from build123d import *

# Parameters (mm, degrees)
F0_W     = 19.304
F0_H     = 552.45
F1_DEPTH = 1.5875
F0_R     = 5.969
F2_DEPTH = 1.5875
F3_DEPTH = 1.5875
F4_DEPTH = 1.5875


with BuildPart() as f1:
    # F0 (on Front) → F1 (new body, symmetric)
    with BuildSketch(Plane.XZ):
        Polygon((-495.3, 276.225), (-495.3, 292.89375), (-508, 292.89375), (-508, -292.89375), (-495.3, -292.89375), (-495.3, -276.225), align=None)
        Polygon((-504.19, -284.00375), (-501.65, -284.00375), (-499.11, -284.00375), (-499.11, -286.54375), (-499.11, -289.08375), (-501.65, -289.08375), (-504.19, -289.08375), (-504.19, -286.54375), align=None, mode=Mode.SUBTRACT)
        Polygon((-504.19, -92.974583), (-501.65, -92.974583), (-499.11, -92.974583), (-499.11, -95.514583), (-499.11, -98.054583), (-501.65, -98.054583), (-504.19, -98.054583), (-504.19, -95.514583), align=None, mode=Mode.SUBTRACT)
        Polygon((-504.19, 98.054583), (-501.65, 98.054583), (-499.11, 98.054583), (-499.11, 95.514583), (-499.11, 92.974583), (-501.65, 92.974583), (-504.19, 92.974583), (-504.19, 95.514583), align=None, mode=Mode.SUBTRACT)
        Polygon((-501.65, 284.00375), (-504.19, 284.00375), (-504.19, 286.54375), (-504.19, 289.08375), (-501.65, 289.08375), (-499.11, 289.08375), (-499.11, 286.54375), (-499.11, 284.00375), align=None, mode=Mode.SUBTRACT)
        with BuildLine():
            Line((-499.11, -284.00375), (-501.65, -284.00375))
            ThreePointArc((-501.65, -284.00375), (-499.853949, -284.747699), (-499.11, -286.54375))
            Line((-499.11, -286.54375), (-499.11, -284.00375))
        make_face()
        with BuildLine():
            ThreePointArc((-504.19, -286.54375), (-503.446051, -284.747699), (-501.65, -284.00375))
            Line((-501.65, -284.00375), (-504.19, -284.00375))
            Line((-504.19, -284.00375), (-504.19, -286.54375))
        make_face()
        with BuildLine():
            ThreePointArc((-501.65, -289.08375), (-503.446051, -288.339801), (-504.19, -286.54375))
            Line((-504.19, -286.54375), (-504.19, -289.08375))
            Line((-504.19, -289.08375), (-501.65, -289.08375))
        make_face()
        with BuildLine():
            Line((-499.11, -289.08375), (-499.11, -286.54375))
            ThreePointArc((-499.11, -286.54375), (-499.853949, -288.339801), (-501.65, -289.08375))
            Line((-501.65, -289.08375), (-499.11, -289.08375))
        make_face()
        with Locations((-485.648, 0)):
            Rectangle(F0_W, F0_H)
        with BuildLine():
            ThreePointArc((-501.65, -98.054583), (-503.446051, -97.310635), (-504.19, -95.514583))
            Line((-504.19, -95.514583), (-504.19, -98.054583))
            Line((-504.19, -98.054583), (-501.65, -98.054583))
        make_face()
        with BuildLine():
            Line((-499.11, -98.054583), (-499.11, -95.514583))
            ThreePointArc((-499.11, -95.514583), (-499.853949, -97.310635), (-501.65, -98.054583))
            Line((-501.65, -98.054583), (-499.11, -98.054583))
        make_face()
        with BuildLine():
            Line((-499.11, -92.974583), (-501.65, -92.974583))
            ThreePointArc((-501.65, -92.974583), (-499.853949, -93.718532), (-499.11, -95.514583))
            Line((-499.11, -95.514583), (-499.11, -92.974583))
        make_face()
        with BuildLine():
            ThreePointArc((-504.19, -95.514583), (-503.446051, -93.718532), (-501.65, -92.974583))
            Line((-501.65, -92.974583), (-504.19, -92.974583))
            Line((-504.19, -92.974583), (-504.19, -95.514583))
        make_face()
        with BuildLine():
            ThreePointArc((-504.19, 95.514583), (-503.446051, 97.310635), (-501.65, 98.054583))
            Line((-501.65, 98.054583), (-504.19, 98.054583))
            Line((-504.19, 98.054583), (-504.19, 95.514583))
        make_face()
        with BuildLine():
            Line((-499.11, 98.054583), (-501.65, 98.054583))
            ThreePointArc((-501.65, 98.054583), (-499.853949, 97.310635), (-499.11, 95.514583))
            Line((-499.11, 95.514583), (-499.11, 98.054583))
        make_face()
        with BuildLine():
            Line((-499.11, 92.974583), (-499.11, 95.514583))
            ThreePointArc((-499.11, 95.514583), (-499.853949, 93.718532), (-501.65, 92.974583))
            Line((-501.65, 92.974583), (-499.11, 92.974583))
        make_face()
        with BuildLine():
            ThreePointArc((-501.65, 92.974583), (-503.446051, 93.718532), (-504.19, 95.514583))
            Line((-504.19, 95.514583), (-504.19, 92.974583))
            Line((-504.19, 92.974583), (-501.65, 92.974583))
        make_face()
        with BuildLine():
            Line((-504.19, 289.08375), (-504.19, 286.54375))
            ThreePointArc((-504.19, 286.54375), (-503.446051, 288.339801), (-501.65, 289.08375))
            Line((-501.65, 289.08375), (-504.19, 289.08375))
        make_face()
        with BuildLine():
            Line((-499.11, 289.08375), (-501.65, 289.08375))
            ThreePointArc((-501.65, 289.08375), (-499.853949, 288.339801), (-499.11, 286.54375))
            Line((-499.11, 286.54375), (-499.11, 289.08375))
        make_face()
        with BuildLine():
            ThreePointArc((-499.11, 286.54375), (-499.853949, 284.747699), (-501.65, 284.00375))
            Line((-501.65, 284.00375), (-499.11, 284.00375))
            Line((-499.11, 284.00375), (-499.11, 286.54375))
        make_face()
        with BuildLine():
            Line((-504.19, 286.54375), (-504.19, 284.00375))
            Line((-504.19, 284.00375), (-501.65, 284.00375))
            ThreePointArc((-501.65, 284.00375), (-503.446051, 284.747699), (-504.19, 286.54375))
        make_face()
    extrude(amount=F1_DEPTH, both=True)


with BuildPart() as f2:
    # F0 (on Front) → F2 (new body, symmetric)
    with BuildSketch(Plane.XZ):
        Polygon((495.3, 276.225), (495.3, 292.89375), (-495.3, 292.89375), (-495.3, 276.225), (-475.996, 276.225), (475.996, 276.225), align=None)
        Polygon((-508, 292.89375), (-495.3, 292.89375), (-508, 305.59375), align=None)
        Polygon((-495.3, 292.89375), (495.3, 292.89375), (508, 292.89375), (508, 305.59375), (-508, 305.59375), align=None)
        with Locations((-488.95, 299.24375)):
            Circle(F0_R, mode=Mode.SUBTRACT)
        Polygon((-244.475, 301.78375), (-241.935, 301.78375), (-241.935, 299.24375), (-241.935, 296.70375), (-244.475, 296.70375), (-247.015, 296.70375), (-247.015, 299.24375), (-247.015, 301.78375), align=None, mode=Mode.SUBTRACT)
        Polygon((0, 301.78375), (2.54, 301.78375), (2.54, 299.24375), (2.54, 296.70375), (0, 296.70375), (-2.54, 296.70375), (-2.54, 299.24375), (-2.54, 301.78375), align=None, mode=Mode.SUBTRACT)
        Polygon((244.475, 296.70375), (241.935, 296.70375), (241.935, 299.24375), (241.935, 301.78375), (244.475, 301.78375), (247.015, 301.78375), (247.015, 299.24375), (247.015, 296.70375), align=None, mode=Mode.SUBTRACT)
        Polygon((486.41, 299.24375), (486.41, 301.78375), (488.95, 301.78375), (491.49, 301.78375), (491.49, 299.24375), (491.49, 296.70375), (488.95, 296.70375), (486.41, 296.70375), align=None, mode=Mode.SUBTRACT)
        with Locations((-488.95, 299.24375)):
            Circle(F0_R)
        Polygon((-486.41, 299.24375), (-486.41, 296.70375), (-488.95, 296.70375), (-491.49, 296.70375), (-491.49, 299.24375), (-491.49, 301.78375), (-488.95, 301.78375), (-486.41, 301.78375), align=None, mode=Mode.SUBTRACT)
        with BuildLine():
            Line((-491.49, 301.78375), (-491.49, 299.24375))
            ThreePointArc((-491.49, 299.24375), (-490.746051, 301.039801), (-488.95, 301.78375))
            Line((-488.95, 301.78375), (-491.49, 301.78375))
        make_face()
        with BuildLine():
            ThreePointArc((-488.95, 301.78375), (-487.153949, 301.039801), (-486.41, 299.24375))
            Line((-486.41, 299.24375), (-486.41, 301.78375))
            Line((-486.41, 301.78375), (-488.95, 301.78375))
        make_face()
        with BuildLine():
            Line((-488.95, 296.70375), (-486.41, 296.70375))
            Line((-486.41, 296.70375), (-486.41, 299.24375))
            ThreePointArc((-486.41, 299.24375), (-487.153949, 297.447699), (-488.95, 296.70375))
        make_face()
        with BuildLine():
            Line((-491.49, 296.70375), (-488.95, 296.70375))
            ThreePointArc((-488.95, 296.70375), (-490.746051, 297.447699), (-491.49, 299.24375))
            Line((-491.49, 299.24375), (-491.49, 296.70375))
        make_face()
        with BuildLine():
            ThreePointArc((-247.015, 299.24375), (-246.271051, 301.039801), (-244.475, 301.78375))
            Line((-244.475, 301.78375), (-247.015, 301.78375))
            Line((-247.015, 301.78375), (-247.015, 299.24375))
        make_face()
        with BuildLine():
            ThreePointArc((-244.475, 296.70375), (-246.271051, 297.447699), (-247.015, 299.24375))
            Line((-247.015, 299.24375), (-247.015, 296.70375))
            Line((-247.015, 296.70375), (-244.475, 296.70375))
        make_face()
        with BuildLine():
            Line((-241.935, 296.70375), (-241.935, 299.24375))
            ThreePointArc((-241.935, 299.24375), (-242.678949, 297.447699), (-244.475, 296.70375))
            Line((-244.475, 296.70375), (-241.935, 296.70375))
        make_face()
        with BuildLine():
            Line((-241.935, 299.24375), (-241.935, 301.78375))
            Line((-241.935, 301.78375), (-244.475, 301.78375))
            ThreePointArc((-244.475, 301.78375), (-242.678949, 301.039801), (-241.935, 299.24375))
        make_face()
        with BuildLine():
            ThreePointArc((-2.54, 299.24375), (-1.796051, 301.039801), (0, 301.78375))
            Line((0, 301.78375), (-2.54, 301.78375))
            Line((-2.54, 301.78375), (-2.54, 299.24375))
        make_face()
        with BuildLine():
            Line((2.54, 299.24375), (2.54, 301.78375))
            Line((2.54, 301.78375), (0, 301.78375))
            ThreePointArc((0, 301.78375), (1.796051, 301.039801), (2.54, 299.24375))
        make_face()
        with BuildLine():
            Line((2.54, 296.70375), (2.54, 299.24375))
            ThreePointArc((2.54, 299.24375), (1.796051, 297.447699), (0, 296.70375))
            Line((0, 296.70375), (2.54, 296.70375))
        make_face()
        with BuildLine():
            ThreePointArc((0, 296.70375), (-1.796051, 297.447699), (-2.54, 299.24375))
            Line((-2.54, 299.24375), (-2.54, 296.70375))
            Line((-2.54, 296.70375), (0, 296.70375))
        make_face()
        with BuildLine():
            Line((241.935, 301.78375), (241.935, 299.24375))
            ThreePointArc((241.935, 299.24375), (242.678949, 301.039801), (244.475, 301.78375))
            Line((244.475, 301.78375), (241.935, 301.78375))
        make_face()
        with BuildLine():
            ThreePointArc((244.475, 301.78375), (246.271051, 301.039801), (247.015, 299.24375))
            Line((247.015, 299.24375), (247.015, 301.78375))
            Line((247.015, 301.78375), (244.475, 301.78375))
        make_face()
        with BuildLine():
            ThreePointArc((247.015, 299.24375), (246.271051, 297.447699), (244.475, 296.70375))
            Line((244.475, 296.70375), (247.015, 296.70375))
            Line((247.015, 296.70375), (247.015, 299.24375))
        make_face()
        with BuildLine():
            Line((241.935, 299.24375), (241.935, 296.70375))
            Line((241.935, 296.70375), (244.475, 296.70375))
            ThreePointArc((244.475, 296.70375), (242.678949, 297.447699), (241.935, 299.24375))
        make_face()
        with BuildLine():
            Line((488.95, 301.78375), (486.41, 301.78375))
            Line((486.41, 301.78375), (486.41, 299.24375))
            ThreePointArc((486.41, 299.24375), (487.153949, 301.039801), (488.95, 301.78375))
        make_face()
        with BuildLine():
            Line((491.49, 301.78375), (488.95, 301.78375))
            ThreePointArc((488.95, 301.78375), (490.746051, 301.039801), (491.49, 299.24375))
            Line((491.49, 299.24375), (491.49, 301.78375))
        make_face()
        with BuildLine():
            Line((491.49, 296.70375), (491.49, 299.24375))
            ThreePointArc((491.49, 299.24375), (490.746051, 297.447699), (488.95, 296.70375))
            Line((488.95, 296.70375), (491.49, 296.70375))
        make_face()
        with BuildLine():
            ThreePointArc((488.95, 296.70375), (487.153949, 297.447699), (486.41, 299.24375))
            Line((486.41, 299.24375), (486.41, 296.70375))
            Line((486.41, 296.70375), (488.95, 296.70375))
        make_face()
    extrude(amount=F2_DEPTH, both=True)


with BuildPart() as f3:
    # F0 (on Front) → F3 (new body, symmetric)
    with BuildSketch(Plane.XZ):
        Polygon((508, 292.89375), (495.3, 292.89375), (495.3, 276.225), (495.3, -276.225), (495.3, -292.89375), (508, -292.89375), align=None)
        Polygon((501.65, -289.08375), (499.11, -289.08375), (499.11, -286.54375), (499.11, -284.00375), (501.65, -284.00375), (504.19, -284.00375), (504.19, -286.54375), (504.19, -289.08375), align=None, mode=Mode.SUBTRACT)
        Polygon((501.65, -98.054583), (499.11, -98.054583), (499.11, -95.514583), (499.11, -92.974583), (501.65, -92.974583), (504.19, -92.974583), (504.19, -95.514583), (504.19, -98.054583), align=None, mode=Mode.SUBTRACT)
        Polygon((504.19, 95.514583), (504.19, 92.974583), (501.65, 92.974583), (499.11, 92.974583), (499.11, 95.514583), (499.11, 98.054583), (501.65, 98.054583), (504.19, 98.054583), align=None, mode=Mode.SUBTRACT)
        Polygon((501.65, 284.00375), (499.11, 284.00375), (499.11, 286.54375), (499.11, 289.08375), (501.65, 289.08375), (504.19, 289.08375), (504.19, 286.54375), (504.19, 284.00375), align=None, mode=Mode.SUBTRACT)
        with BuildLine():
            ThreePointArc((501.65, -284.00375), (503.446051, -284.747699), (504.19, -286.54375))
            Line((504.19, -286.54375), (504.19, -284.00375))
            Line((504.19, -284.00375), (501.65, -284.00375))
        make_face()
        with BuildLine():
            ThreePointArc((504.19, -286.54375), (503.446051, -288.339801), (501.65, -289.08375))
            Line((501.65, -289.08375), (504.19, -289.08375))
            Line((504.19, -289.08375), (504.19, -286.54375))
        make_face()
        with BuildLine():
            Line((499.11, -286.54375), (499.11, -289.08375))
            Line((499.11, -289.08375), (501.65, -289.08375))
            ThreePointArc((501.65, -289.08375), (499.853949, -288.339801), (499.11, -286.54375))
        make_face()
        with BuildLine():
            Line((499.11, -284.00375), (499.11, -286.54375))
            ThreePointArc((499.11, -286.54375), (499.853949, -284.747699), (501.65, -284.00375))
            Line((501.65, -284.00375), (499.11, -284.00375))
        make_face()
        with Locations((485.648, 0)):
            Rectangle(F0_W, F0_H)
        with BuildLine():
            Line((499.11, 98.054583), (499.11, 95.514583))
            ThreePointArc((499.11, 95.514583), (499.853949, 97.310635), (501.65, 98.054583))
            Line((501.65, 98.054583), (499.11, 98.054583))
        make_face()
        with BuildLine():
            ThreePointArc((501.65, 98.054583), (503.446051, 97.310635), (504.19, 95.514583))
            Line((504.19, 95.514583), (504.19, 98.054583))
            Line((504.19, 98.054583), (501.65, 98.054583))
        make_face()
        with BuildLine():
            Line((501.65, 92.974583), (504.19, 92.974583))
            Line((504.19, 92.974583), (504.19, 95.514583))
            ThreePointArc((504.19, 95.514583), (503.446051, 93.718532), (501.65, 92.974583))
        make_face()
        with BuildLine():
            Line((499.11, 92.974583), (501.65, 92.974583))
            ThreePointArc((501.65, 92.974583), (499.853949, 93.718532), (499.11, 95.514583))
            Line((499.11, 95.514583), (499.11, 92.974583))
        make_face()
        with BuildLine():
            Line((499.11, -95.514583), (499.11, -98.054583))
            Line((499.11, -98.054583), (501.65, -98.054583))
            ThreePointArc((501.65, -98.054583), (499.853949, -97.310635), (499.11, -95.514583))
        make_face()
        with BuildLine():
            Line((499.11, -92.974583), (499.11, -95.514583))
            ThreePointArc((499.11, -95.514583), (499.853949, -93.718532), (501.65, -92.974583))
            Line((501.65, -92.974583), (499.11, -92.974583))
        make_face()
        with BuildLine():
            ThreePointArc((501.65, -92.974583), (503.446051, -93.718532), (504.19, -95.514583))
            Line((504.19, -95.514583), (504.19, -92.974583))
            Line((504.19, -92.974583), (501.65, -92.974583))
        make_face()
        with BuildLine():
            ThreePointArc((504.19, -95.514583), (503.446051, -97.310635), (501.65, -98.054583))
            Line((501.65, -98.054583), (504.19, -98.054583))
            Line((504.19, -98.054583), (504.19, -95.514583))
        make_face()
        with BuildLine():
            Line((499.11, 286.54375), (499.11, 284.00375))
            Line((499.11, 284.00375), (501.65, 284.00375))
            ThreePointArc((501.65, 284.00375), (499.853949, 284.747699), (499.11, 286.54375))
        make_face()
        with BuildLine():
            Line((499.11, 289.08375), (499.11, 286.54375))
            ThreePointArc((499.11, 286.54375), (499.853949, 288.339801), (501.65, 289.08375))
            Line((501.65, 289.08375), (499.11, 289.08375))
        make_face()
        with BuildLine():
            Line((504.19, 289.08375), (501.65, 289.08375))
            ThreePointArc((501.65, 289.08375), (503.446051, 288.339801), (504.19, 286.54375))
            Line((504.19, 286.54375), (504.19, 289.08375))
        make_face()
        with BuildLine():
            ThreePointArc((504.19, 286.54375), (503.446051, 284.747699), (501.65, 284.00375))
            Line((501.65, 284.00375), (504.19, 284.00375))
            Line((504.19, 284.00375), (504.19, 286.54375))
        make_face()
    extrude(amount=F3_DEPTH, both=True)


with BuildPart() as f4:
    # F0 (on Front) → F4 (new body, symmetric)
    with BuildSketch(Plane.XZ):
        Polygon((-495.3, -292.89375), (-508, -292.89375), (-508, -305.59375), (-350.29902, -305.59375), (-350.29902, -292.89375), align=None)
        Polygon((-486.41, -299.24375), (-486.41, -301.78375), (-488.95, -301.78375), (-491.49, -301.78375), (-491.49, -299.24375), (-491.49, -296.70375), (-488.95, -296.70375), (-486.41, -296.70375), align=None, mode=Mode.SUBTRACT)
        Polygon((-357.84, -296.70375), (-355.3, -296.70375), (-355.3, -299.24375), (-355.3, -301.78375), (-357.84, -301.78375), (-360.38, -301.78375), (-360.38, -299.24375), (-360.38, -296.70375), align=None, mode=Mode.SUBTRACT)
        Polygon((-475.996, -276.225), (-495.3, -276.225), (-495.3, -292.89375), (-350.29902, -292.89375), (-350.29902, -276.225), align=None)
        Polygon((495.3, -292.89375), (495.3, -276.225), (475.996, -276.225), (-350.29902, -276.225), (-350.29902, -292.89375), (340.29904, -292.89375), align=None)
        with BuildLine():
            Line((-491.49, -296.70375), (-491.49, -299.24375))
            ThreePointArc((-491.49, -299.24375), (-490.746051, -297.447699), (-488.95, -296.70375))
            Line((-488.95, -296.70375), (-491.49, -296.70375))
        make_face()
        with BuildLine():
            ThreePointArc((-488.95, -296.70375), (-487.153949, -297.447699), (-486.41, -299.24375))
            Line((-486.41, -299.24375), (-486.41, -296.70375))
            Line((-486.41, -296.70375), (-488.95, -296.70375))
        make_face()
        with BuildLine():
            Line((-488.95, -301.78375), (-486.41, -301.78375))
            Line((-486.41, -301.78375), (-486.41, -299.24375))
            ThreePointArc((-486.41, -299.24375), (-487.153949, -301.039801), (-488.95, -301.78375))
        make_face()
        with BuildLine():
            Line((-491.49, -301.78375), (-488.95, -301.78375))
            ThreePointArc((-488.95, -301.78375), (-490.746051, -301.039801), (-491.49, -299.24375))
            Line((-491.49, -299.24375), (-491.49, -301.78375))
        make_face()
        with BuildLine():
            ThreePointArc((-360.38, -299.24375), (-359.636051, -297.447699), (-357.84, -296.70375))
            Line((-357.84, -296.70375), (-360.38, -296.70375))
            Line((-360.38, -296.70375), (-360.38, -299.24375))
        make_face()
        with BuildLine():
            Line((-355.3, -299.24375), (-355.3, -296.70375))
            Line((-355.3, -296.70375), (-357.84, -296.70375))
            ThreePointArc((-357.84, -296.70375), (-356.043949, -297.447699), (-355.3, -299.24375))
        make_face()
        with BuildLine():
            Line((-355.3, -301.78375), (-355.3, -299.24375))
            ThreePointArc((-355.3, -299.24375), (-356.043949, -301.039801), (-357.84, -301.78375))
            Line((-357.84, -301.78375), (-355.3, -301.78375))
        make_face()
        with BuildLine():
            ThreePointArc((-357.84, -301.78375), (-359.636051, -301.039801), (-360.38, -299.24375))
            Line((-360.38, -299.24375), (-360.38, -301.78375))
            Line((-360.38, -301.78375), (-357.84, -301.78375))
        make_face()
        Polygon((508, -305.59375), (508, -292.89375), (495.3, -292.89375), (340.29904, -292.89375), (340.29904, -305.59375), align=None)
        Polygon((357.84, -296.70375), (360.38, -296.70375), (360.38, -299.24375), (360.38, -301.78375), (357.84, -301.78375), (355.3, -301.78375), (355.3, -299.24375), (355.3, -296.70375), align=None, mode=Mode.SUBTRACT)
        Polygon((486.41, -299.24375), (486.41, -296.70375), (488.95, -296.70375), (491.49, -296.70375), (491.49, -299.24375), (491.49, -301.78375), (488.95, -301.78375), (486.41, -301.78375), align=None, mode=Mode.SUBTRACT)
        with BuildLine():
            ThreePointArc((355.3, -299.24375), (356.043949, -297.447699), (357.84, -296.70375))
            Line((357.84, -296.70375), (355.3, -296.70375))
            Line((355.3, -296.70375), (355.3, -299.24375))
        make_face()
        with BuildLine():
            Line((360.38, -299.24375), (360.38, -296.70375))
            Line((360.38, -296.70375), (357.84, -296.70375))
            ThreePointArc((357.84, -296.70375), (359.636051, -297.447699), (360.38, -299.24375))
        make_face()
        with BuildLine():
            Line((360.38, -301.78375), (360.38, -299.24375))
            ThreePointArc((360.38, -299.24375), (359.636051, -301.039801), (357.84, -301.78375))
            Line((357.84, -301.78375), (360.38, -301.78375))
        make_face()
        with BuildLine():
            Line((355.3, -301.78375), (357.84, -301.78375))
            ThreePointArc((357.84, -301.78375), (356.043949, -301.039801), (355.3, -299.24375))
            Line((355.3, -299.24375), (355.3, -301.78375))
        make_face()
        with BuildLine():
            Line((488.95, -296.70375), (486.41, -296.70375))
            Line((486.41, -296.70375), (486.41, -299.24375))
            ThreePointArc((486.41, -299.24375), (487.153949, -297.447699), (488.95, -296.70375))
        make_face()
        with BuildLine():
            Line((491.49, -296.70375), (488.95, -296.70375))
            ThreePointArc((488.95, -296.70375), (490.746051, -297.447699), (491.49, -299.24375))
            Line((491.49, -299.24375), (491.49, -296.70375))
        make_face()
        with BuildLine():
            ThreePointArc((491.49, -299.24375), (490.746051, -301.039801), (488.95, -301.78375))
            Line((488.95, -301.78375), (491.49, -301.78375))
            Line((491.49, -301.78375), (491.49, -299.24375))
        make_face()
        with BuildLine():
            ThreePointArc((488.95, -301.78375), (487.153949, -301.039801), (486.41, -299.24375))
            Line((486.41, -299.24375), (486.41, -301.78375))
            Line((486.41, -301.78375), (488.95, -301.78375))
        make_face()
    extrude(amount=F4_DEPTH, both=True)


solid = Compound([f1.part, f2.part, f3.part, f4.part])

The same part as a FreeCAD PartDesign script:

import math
import FreeCAD as App
import Part
import Sketcher

V = App.Vector
Q = App.Units.Quantity


def add_polygon(sketch, points):
    """Adds a closed chain of lines whose ends are joined by coincident constraints."""
    first, n = sketch.GeometryCount, len(points)
    for a, b in zip(points, points[1:] + points[:1]):
        sketch.addGeometry(Part.LineSegment(App.Vector(*a, 0), App.Vector(*b, 0)), False)
    for i in range(n):
        sketch.addConstraint(Sketcher.Constraint("Coincident", first + i, 2, first + (i + 1) % n, 1))

doc = App.newDocument("Part")
params = doc.addObject("Spreadsheet::Sheet", "Params")
for row, (alias, value) in enumerate([
    ("sketch1_radius", "0.1 in"),
    ("sketch1_width", "0.5 in"),
    ("sketch1_width2", "0.76 in"),
    ("sketch1_height", "21.75 in"),
    ("sketch1_height2", "23.0625 in"),
    ("pad1_length", "0.125 in"),
    ("sketch2_radius", "0.1 in"),
    ("sketch2_width", "40 in"),
    ("sketch2_width2", "39 in"),
    ("sketch2_height", "0.65625 in"),
    ("pad2_length", "0.125 in"),
    ("sketch3_radius", "0.1 in"),
    ("sketch3_width", "0.5 in"),
    ("sketch3_width2", "0.76 in"),
    ("sketch3_height", "21.75 in"),
    ("sketch3_height2", "0.65625 in"),
    ("pad3_length", "0.125 in"),
    ("sketch4_radius", "0.1 in"),
    ("sketch4_width", "39 in"),
    ("sketch4_width2", "0.5 in"),
    ("sketch4_height", "0.65625 in"),
    ("pad4_length", "0.125 in"),
], start=1):
    params.set(f"A{row}", alias)
    params.set(f"B{row}", "=" + value)
    params.setAlias(f"B{row}", alias)

body = doc.addObject("PartDesign::Body", "Body")

sketch1 = doc.addObject("Sketcher::SketchObject", "Sketch")
body.addObject(sketch1)
sketch1.AttachmentSupport = (doc.XZ_Plane, [""])
sketch1.MapMode = "FlatFace"
add_polygon(sketch1, [(-495.3, 292.9), (-508, 292.9), (-508, -292.9), (-495.3, -292.9), (-495.3, -276.2), (-476, -276.2), (-476, 276.2), (-495.3, 276.2)])
sketch1.addGeometry(Part.ArcOfCircle(Part.Circle(V(-501.6, -286.5, 0), V(0, 0, 1), 2.5), math.radians(90), math.radians(180)), False)
sketch1.addGeometry(Part.ArcOfCircle(Part.Circle(V(-501.7, -286.5, 0), V(0, 0, 1), 2.5), math.radians(0), math.radians(90)), False)
sketch1.addGeometry(Part.ArcOfCircle(Part.Circle(V(-501.7, -286.5, 0), V(0, 0, 1), 2.5), math.radians(-90), math.radians(0)), False)
sketch1.addGeometry(Part.ArcOfCircle(Part.Circle(V(-501.6, -286.5, 0), V(0, 0, 1), 2.5), math.radians(-180), math.radians(-90)), False)
sketch1.addGeometry(Part.ArcOfCircle(Part.Circle(V(-501.7, -95.5, 0), V(0, 0, 1), 2.5), math.radians(0), math.radians(90)), False)
sketch1.addGeometry(Part.ArcOfCircle(Part.Circle(V(-501.6, -95.5, 0), V(0, 0, 1), 2.5), math.radians(-90), math.radians(0)), False)
sketch1.addGeometry(Part.ArcOfCircle(Part.Circle(V(-501.7, -95.5, 0), V(0, 0, 1), 2.5), math.radians(180), math.radians(270)), False)
sketch1.addGeometry(Part.ArcOfCircle(Part.Circle(V(-501.6, -95.5, 0), V(0, 0, 1), 2.5), math.radians(90), math.radians(180)), False)
sketch1.addGeometry(Part.ArcOfCircle(Part.Circle(V(-501.7, 95.5, 0), V(0, 0, 1), 2.5), math.radians(90), math.radians(180)), False)
sketch1.addGeometry(Part.ArcOfCircle(Part.Circle(V(-501.6, 95.5, 0), V(0, 0, 1), 2.5), math.radians(0), math.radians(90)), False)
sketch1.addGeometry(Part.ArcOfCircle(Part.Circle(V(-501.7, 95.5, 0), V(0, 0, 1), 2.5), math.radians(-90), math.radians(0)), False)
sketch1.addGeometry(Part.ArcOfCircle(Part.Circle(V(-501.6, 95.5, 0), V(0, 0, 1), 2.5), math.radians(-180), math.radians(-90)), False)
sketch1.addGeometry(Part.ArcOfCircle(Part.Circle(V(-501.6, 286.5, 0), V(0, 0, 1), 2.5), math.radians(90), math.radians(180)), False)
sketch1.addGeometry(Part.ArcOfCircle(Part.Circle(V(-501.7, 286.5, 0), V(0, 0, 1), 2.5), math.radians(0), math.radians(90)), False)
sketch1.addGeometry(Part.ArcOfCircle(Part.Circle(V(-501.7, 286.5, 0), V(0, 0, 1), 2.5), math.radians(-90), math.radians(0)), False)
sketch1.addGeometry(Part.ArcOfCircle(Part.Circle(V(-501.6, 286.5, 0), V(0, 0, 1), 2.5), math.radians(-180), math.radians(-90)), False)
sketch1.addConstraint([
    Sketcher.Constraint("Tangent", 8, 1, 9, 2),
    Sketcher.Constraint("Tangent", 9, 1, 10, 2),
    Sketcher.Constraint("Tangent", 10, 1, 11, 2),
    Sketcher.Constraint("Tangent", 11, 1, 8, 2),
    Sketcher.Constraint("Tangent", 12, 1, 13, 2),
    Sketcher.Constraint("Tangent", 13, 1, 14, 2),
    Sketcher.Constraint("Tangent", 14, 1, 15, 2),
    Sketcher.Constraint("Tangent", 15, 1, 12, 2),
    Sketcher.Constraint("Tangent", 16, 1, 17, 2),
    Sketcher.Constraint("Tangent", 17, 1, 18, 2),
    Sketcher.Constraint("Tangent", 18, 1, 19, 2),
    Sketcher.Constraint("Tangent", 19, 1, 16, 2),
    Sketcher.Constraint("Tangent", 20, 1, 21, 2),
    Sketcher.Constraint("Tangent", 21, 1, 22, 2),
    Sketcher.Constraint("Tangent", 22, 1, 23, 2),
    Sketcher.Constraint("Tangent", 23, 1, 20, 2),
    Sketcher.Constraint("Horizontal", 0),
    Sketcher.Constraint("Vertical", 1),
    Sketcher.Constraint("Horizontal", 2),
    Sketcher.Constraint("Vertical", 3),
    Sketcher.Constraint("Horizontal", 4),
    Sketcher.Constraint("Vertical", 5),
    Sketcher.Constraint("Horizontal", 6),
    Sketcher.Constraint("Vertical", 7),
    Sketcher.Constraint("Equal", 8, 9),
    Sketcher.Constraint("Equal", 11, 12),
    Sketcher.Constraint("Equal", 12, 13),
    Sketcher.Constraint("Equal", 15, 16),
    Sketcher.Constraint("Equal", 16, 17),
    Sketcher.Constraint("Equal", 19, 20),
    Sketcher.Constraint("Equal", 20, 21),
    Sketcher.Constraint("Symmetric", 12, 3, 16, 3, -1),
    Sketcher.Constraint("Symmetric", 8, 3, 20, 3, -1),
    Sketcher.Constraint("Symmetric", 3, 2, 6, 2, -1),
    Sketcher.Constraint("Horizontal", 11, 3, 9, 1),
    Sketcher.Constraint("Horizontal", 9, 1, 11, 1),
    Sketcher.Constraint("Horizontal", 15, 3, 12, 1),
    Sketcher.Constraint("Horizontal", 12, 1, 14, 1),
    Sketcher.Constraint("Horizontal", 19, 3, 17, 1),
    Sketcher.Constraint("Horizontal", 17, 1, 19, 1),
    Sketcher.Constraint("Horizontal", 23, 3, 21, 1),
    Sketcher.Constraint("Horizontal", 21, 1, 23, 1),
    Sketcher.Constraint("Vertical", 11, 3, 12, 3),
    Sketcher.Constraint("Vertical", 23, 3, 8, 1),
    Sketcher.Constraint("Vertical", 8, 1, 10, 1),
    Sketcher.Constraint("Vertical", 10, 1, 13, 1),
    Sketcher.Constraint("Vertical", 13, 1, 15, 1),
    Sketcher.Constraint("Vertical", 15, 1, 16, 1),
    Sketcher.Constraint("Vertical", 16, 1, 18, 1),
    Sketcher.Constraint("Vertical", 18, 1, 20, 1),
    Sketcher.Constraint("Vertical", 20, 1, 22, 1),
    Sketcher.Constraint("Equal", 3, 7),
    Sketcher.Constraint("Radius", 8, Q("0.1 in")),
    Sketcher.Constraint("DistanceX", 0, 2, 0, 1, Q("0.5 in")),
    Sketcher.Constraint("DistanceX", 0, 2, -1, 1, Q("20 in")),
    Sketcher.Constraint("DistanceX", 4, 1, 4, 2, Q("0.76 in")),
    Sketcher.Constraint("DistanceY", 5, 1, 5, 2, Q("21.75 in")),
    Sketcher.Constraint("DistanceY", 1, 2, 1, 1, Q("23.0625 in")),
    Sketcher.Constraint("DistanceX", 8, 3, -1, 1, Q("19.75 in")),
    Sketcher.Constraint("DistanceY", 22, 3, 0, 2, Q("0.25 in")),
    Sketcher.Constraint("DistanceY", 12, 3, -1, 1, Q("95.514584 mm")),
])
sketch1.setExpression("Constraints[60]", "Params.sketch1_radius")
sketch1.setExpression("Constraints[61]", "Params.sketch1_width")
sketch1.setExpression("Constraints[63]", "Params.sketch1_width2")
sketch1.setExpression("Constraints[64]", "Params.sketch1_height")
sketch1.setExpression("Constraints[65]", "Params.sketch1_height2")
pad1 = doc.addObject("PartDesign::Pad", "Pad")
body.addObject(pad1)
pad1.Profile = sketch1
pad1.setExpression("Length", "Params.pad1_length")
pad1.Midplane = True
body2 = doc.addObject("PartDesign::Body", "Body001")

sketch2 = doc.addObject("Sketcher::SketchObject", "Sketch001")
body2.addObject(sketch2)
sketch2.AttachmentSupport = (doc.getObject("XZ_Plane001"), [""])
sketch2.MapMode = "FlatFace"
add_polygon(sketch2, [(495.3, 276.2), (495.3, 292.9), (508, 292.9), (508, 305.6), (-508, 305.6), (-508, 292.9), (-495.3, 292.9), (-495.3, 276.2)])
sketch2.addGeometry(Part.ArcOfCircle(Part.Circle(V(-488.9, 299.2, 0), V(0, 0, 1), 2.5), math.radians(90), math.radians(180)), False)
sketch2.addGeometry(Part.ArcOfCircle(Part.Circle(V(-489, 299.2, 0), V(0, 0, 1), 2.5), math.radians(0), math.radians(90)), False)
sketch2.addGeometry(Part.ArcOfCircle(Part.Circle(V(-489, 299.2, 0), V(0, 0, 1), 2.5), math.radians(-90), math.radians(0)), False)
sketch2.addGeometry(Part.ArcOfCircle(Part.Circle(V(-488.9, 299.2, 0), V(0, 0, 1), 2.5), math.radians(-180), math.radians(-90)), False)
sketch2.addGeometry(Part.ArcOfCircle(Part.Circle(V(-244.5, 299.2, 0), V(0, 0, 1), 2.5), math.radians(-90), math.radians(0)), False)
sketch2.addGeometry(Part.ArcOfCircle(Part.Circle(V(-244.5, 299.2, 0), V(0, 0, 1), 2.5), math.radians(-180), math.radians(-90)), False)
sketch2.addGeometry(Part.ArcOfCircle(Part.Circle(V(-244.5, 299.2, 0), V(0, 0, 1), 2.5), math.radians(90), math.radians(180)), False)
sketch2.addGeometry(Part.ArcOfCircle(Part.Circle(V(-244.5, 299.2, 0), V(0, 0, 1), 2.5), math.radians(0), math.radians(90)), False)
sketch2.addGeometry(Part.ArcOfCircle(Part.Circle(V(0, 299.2, 0), V(0, 0, 1), 2.5), math.radians(90), math.radians(180)), False)
sketch2.addGeometry(Part.ArcOfCircle(Part.Circle(V(0, 299.2, 0), V(0, 0, 1), 2.5), math.radians(0), math.radians(90)), False)
sketch2.addGeometry(Part.ArcOfCircle(Part.Circle(V(0, 299.2, 0), V(0, 0, 1), 2.5), math.radians(-90), math.radians(0)), False)
sketch2.addGeometry(Part.ArcOfCircle(Part.Circle(V(0, 299.2, 0), V(0, 0, 1), 2.5), math.radians(-180), math.radians(-90)), False)
sketch2.addGeometry(Part.ArcOfCircle(Part.Circle(V(244.5, 299.2, 0), V(0, 0, 1), 2.5), math.radians(90), math.radians(180)), False)
sketch2.addGeometry(Part.ArcOfCircle(Part.Circle(V(244.5, 299.2, 0), V(0, 0, 1), 2.5), math.radians(0), math.radians(90)), False)
sketch2.addGeometry(Part.ArcOfCircle(Part.Circle(V(244.5, 299.2, 0), V(0, 0, 1), 2.5), math.radians(-90), math.radians(0)), False)
sketch2.addGeometry(Part.ArcOfCircle(Part.Circle(V(244.5, 299.2, 0), V(0, 0, 1), 2.5), math.radians(-180), math.radians(-90)), False)
sketch2.addGeometry(Part.ArcOfCircle(Part.Circle(V(489, 299.2, 0), V(0, 0, 1), 2.5), math.radians(90), math.radians(180)), False)
sketch2.addGeometry(Part.ArcOfCircle(Part.Circle(V(488.9, 299.2, 0), V(0, 0, 1), 2.5), math.radians(0), math.radians(90)), False)
sketch2.addGeometry(Part.ArcOfCircle(Part.Circle(V(488.9, 299.2, 0), V(0, 0, 1), 2.5), math.radians(-90), math.radians(0)), False)
sketch2.addGeometry(Part.ArcOfCircle(Part.Circle(V(489, 299.2, 0), V(0, 0, 1), 2.5), math.radians(-180), math.radians(-90)), False)
sketch2.addConstraint([
    Sketcher.Constraint("Tangent", 8, 1, 9, 2),
    Sketcher.Constraint("Tangent", 9, 1, 10, 2),
    Sketcher.Constraint("Tangent", 10, 1, 11, 2),
    Sketcher.Constraint("Tangent", 11, 1, 8, 2),
    Sketcher.Constraint("Tangent", 12, 1, 13, 2),
    Sketcher.Constraint("Tangent", 13, 1, 14, 2),
    Sketcher.Constraint("Tangent", 14, 1, 15, 2),
    Sketcher.Constraint("Tangent", 15, 1, 12, 2),
    Sketcher.Constraint("Tangent", 16, 1, 17, 2),
    Sketcher.Constraint("Tangent", 17, 1, 18, 2),
    Sketcher.Constraint("Tangent", 18, 1, 19, 2),
    Sketcher.Constraint("Tangent", 19, 1, 16, 2),
    Sketcher.Constraint("Tangent", 20, 1, 21, 2),
    Sketcher.Constraint("Tangent", 21, 1, 22, 2),
    Sketcher.Constraint("Tangent", 22, 1, 23, 2),
    Sketcher.Constraint("Tangent", 23, 1, 20, 2),
    Sketcher.Constraint("Tangent", 24, 1, 25, 2),
    Sketcher.Constraint("Tangent", 25, 1, 26, 2),
    Sketcher.Constraint("Tangent", 26, 1, 27, 2),
    Sketcher.Constraint("Tangent", 27, 1, 24, 2),
    Sketcher.Constraint("Vertical", 0),
    Sketcher.Constraint("Horizontal", 1),
    Sketcher.Constraint("Vertical", 2),
    Sketcher.Constraint("Horizontal", 3),
    Sketcher.Constraint("Vertical", 4),
    Sketcher.Constraint("Horizontal", 5),
    Sketcher.Constraint("Vertical", 6),
    Sketcher.Constraint("Horizontal", 7),
    Sketcher.Constraint("Equal", 8, 9),
    Sketcher.Constraint("Equal", 11, 12),
    Sketcher.Constraint("Equal", 12, 13),
    Sketcher.Constraint("Equal", 15, 16),
    Sketcher.Constraint("Equal", 16, 17),
    Sketcher.Constraint("Equal", 19, 20),
    Sketcher.Constraint("Equal", 20, 21),
    Sketcher.Constraint("Equal", 23, 24),
    Sketcher.Constraint("Equal", 24, 25),
    Sketcher.Constraint("Symmetric", 12, 3, 20, 3, -2),
    Sketcher.Constraint("Symmetric", 8, 3, 24, 3, -2),
    Sketcher.Constraint("Symmetric", 1, 2, 4, 2, -2),
    Sketcher.Constraint("Symmetric", 17, 1, 19, 1, -2),
    Sketcher.Constraint("PointOnObject", 16, 1, -2),
    Sketcher.Constraint("PointOnObject", 18, 1, -2),
    Sketcher.Constraint("Horizontal", 11, 3, 12, 3),
    Sketcher.Constraint("Horizontal", 15, 3, 16, 3),
    Sketcher.Constraint("Horizontal", 27, 3, 9, 1),
    Sketcher.Constraint("Horizontal", 9, 1, 11, 1),
    Sketcher.Constraint("Horizontal", 11, 1, 13, 1),
    Sketcher.Constraint("Horizontal", 13, 1, 15, 1),
    Sketcher.Constraint("Horizontal", 15, 1, 17, 1),
    Sketcher.Constraint("Horizontal", 19, 1, 21, 1),
    Sketcher.Constraint("Horizontal", 21, 1, 23, 1),
    Sketcher.Constraint("Horizontal", 23, 1, 25, 1),
    Sketcher.Constraint("Horizontal", 25, 1, 27, 1),
    Sketcher.Constraint("Vertical", 11, 3, 8, 1),
    Sketcher.Constraint("Vertical", 8, 1, 10, 1),
    Sketcher.Constraint("Vertical", 15, 3, 12, 1),
    Sketcher.Constraint("Vertical", 12, 1, 14, 1),
    Sketcher.Constraint("Vertical", 23, 3, 20, 1),
    Sketcher.Constraint("Vertical", 20, 1, 22, 1),
    Sketcher.Constraint("Vertical", 27, 3, 24, 1),
    Sketcher.Constraint("Vertical", 24, 1, 26, 1),
    Sketcher.Constraint("Equal", 1, 5),
    Sketcher.Constraint("Equal", 5, 2),
    Sketcher.Constraint("Radius", 8, Q("0.1 in")),
    Sketcher.Constraint("DistanceX", 3, 2, 3, 1, Q("40 in")),
    Sketcher.Constraint("DistanceX", 7, 1, 7, 2, Q("39 in")),
    Sketcher.Constraint("DistanceY", 0, 1, 0, 2, Q("0.65625 in")),
    Sketcher.Constraint("DistanceX", 8, 3, -1, 1, Q("19.25 in")),
    Sketcher.Constraint("DistanceX", 13, 3, 20, 3, Q("19.25 in")),
    Sketcher.Constraint("DistanceY", 0, 2, 24, 3, Q("0.25 in")),
    Sketcher.Constraint("DistanceY", -1, 1, 8, 3, Q("11.78125 in")),
])
sketch2.setExpression("Constraints[72]", "Params.sketch2_radius")
sketch2.setExpression("Constraints[73]", "Params.sketch2_width")
sketch2.setExpression("Constraints[74]", "Params.sketch2_width2")
sketch2.setExpression("Constraints[75]", "Params.sketch2_height")
pad2 = doc.addObject("PartDesign::Pad", "Pad001")
body2.addObject(pad2)
pad2.Profile = sketch2
pad2.setExpression("Length", "Params.pad2_length")
pad2.Midplane = True
body3 = doc.addObject("PartDesign::Body", "Body002")

sketch3 = doc.addObject("Sketcher::SketchObject", "Sketch002")
body3.addObject(sketch3)
sketch3.AttachmentSupport = (doc.getObject("XZ_Plane002"), [""])
sketch3.MapMode = "FlatFace"
add_polygon(sketch3, [(508, 292.9), (495.3, 292.9), (495.3, 276.2), (476, 276.2), (476, -276.2), (495.3, -276.2), (495.3, -292.9), (508, -292.9)])
sketch3.addGeometry(Part.ArcOfCircle(Part.Circle(V(501.6, -286.5, 0), V(0, 0, 1), 2.5), math.radians(0), math.radians(90)), False)
sketch3.addGeometry(Part.ArcOfCircle(Part.Circle(V(501.6, -286.5, 0), V(0, 0, 1), 2.5), math.radians(-90), math.radians(0)), False)
sketch3.addGeometry(Part.ArcOfCircle(Part.Circle(V(501.7, -286.5, 0), V(0, 0, 1), 2.5), math.radians(-180), math.radians(-90)), False)
sketch3.addGeometry(Part.ArcOfCircle(Part.Circle(V(501.7, -286.5, 0), V(0, 0, 1), 2.5), math.radians(90), math.radians(180)), False)
sketch3.addGeometry(Part.ArcOfCircle(Part.Circle(V(501.6, -95.5, 0), V(0, 0, 1), 2.5), math.radians(180), math.radians(270)), False)
sketch3.addGeometry(Part.ArcOfCircle(Part.Circle(V(501.7, -95.5, 0), V(0, 0, 1), 2.5), math.radians(90), math.radians(180)), False)
sketch3.addGeometry(Part.ArcOfCircle(Part.Circle(V(501.6, -95.5, 0), V(0, 0, 1), 2.5), math.radians(0), math.radians(90)), False)
sketch3.addGeometry(Part.ArcOfCircle(Part.Circle(V(501.7, -95.5, 0), V(0, 0, 1), 2.5), math.radians(-90), math.radians(0)), False)
sketch3.addGeometry(Part.ArcOfCircle(Part.Circle(V(501.6, 95.5, 0), V(0, 0, 1), 2.5), math.radians(90), math.radians(180)), False)
sketch3.addGeometry(Part.ArcOfCircle(Part.Circle(V(501.7, 95.5, 0), V(0, 0, 1), 2.5), math.radians(0), math.radians(90)), False)
sketch3.addGeometry(Part.ArcOfCircle(Part.Circle(V(501.6, 95.5, 0), V(0, 0, 1), 2.5), math.radians(-90), math.radians(0)), False)
sketch3.addGeometry(Part.ArcOfCircle(Part.Circle(V(501.7, 95.5, 0), V(0, 0, 1), 2.5), math.radians(-180), math.radians(-90)), False)
sketch3.addGeometry(Part.ArcOfCircle(Part.Circle(V(501.7, 286.5, 0), V(0, 0, 1), 2.5), math.radians(-180), math.radians(-90)), False)
sketch3.addGeometry(Part.ArcOfCircle(Part.Circle(V(501.7, 286.5, 0), V(0, 0, 1), 2.5), math.radians(90), math.radians(180)), False)
sketch3.addGeometry(Part.ArcOfCircle(Part.Circle(V(501.6, 286.5, 0), V(0, 0, 1), 2.5), math.radians(0), math.radians(90)), False)
sketch3.addGeometry(Part.ArcOfCircle(Part.Circle(V(501.6, 286.5, 0), V(0, 0, 1), 2.5), math.radians(-90), math.radians(0)), False)
sketch3.addConstraint([
    Sketcher.Constraint("Tangent", 8, 1, 9, 2),
    Sketcher.Constraint("Tangent", 9, 1, 10, 2),
    Sketcher.Constraint("Tangent", 10, 1, 11, 2),
    Sketcher.Constraint("Tangent", 11, 1, 8, 2),
    Sketcher.Constraint("Tangent", 12, 1, 13, 2),
    Sketcher.Constraint("Tangent", 13, 1, 14, 2),
    Sketcher.Constraint("Tangent", 14, 1, 15, 2),
    Sketcher.Constraint("Tangent", 15, 1, 12, 2),
    Sketcher.Constraint("Tangent", 16, 1, 17, 2),
    Sketcher.Constraint("Tangent", 17, 1, 18, 2),
    Sketcher.Constraint("Tangent", 18, 1, 19, 2),
    Sketcher.Constraint("Tangent", 19, 1, 16, 2),
    Sketcher.Constraint("Tangent", 20, 1, 21, 2),
    Sketcher.Constraint("Tangent", 21, 1, 22, 2),
    Sketcher.Constraint("Tangent", 22, 1, 23, 2),
    Sketcher.Constraint("Tangent", 23, 1, 20, 2),
    Sketcher.Constraint("Horizontal", 0),
    Sketcher.Constraint("Vertical", 1),
    Sketcher.Constraint("Horizontal", 2),
    Sketcher.Constraint("Vertical", 3),
    Sketcher.Constraint("Horizontal", 4),
    Sketcher.Constraint("Vertical", 5),
    Sketcher.Constraint("Horizontal", 6),
    Sketcher.Constraint("Vertical", 7),
    Sketcher.Constraint("Equal", 8, 9),
    Sketcher.Constraint("Equal", 11, 12),
    Sketcher.Constraint("Equal", 12, 13),
    Sketcher.Constraint("Equal", 15, 16),
    Sketcher.Constraint("Equal", 16, 17),
    Sketcher.Constraint("Equal", 19, 20),
    Sketcher.Constraint("Equal", 20, 21),
    Sketcher.Constraint("Symmetric", 12, 3, 16, 3, -1),
    Sketcher.Constraint("Symmetric", 8, 3, 20, 3, -1),
    Sketcher.Constraint("Symmetric", 1, 2, 4, 2, -1),
    Sketcher.Constraint("Horizontal", 11, 3, 8, 1),
    Sketcher.Constraint("Horizontal", 8, 1, 10, 1),
    Sketcher.Constraint("Horizontal", 15, 3, 12, 1),
    Sketcher.Constraint("Horizontal", 12, 1, 14, 1),
    Sketcher.Constraint("Horizontal", 19, 3, 17, 1),
    Sketcher.Constraint("Horizontal", 17, 1, 19, 1),
    Sketcher.Constraint("Horizontal", 23, 3, 20, 1),
    Sketcher.Constraint("Horizontal", 20, 1, 22, 1),
    Sketcher.Constraint("Vertical", 11, 3, 12, 3),
    Sketcher.Constraint("Vertical", 23, 3, 9, 1),
    Sketcher.Constraint("Vertical", 9, 1, 11, 1),
    Sketcher.Constraint("Vertical", 11, 1, 13, 1),
    Sketcher.Constraint("Vertical", 13, 1, 15, 1),
    Sketcher.Constraint("Vertical", 15, 1, 16, 1),
    Sketcher.Constraint("Vertical", 16, 1, 18, 1),
    Sketcher.Constraint("Vertical", 18, 1, 21, 1),
    Sketcher.Constraint("Vertical", 21, 1, 23, 1),
    Sketcher.Constraint("Equal", 1, 5),
    Sketcher.Constraint("Radius", 8, Q("0.1 in")),
    Sketcher.Constraint("DistanceX", 0, 2, 0, 1, Q("0.5 in")),
    Sketcher.Constraint("DistanceX", -1, 1, 6, 2, Q("20 in")),
    Sketcher.Constraint("DistanceX", 2, 2, 2, 1, Q("0.76 in")),
    Sketcher.Constraint("DistanceY", 3, 2, 3, 1, Q("21.75 in")),
    Sketcher.Constraint("DistanceY", 1, 2, 1, 1, Q("0.65625 in")),
    Sketcher.Constraint("DistanceX", -1, 1, 8, 3, Q("19.75 in")),
    Sketcher.Constraint("DistanceY", 23, 3, 0, 2, Q("0.25 in")),
    Sketcher.Constraint("DistanceY", 12, 3, -1, 1, Q("95.514584 mm")),
])
sketch3.setExpression("Constraints[60]", "Params.sketch3_radius")
sketch3.setExpression("Constraints[61]", "Params.sketch3_width")
sketch3.setExpression("Constraints[63]", "Params.sketch3_width2")
sketch3.setExpression("Constraints[64]", "Params.sketch3_height")
sketch3.setExpression("Constraints[65]", "Params.sketch3_height2")
pad3 = doc.addObject("PartDesign::Pad", "Pad002")
body3.addObject(pad3)
pad3.Profile = sketch3
pad3.setExpression("Length", "Params.pad3_length")
pad3.Midplane = True
body4 = doc.addObject("PartDesign::Body", "Body003")

sketch4 = doc.addObject("Sketcher::SketchObject", "Sketch003")
body4.addObject(sketch4)
sketch4.AttachmentSupport = (doc.getObject("XZ_Plane003"), [""])
sketch4.MapMode = "FlatFace"
add_polygon(sketch4, [(-508, -292.9), (-508, -305.6), (-350.3, -305.6), (-350.3, -292.9), (340.3, -292.9), (340.3, -305.6), (508, -305.6), (508, -292.9), (495.3, -292.9), (495.3, -276.2), (-495.3, -276.2), (-495.3, -292.9)])
sketch4.addGeometry(Part.ArcOfCircle(Part.Circle(V(-488.9, -299.2, 0), V(0, 0, 1), 2.5), math.radians(90), math.radians(180)), False)
sketch4.addGeometry(Part.ArcOfCircle(Part.Circle(V(-489, -299.2, 0), V(0, 0, 1), 2.5), math.radians(0), math.radians(90)), False)
sketch4.addGeometry(Part.ArcOfCircle(Part.Circle(V(-489, -299.2, 0), V(0, 0, 1), 2.5), math.radians(-90), math.radians(0)), False)
sketch4.addGeometry(Part.ArcOfCircle(Part.Circle(V(-488.9, -299.2, 0), V(0, 0, 1), 2.5), math.radians(-180), math.radians(-90)), False)
sketch4.addGeometry(Part.ArcOfCircle(Part.Circle(V(-357.8, -299.2, 0), V(0, 0, 1), 2.5), math.radians(90), math.radians(180)), False)
sketch4.addGeometry(Part.ArcOfCircle(Part.Circle(V(-357.8, -299.2, 0), V(0, 0, 1), 2.5), math.radians(0), math.radians(90)), False)
sketch4.addGeometry(Part.ArcOfCircle(Part.Circle(V(-357.8, -299.2, 0), V(0, 0, 1), 2.5), math.radians(-90), math.radians(0)), False)
sketch4.addGeometry(Part.ArcOfCircle(Part.Circle(V(-357.8, -299.2, 0), V(0, 0, 1), 2.5), math.radians(-180), math.radians(-90)), False)
sketch4.addGeometry(Part.ArcOfCircle(Part.Circle(V(357.8, -299.2, 0), V(0, 0, 1), 2.5), math.radians(90), math.radians(180)), False)
sketch4.addGeometry(Part.ArcOfCircle(Part.Circle(V(357.8, -299.2, 0), V(0, 0, 1), 2.5), math.radians(0), math.radians(90)), False)
sketch4.addGeometry(Part.ArcOfCircle(Part.Circle(V(357.8, -299.2, 0), V(0, 0, 1), 2.5), math.radians(-90), math.radians(0)), False)
sketch4.addGeometry(Part.ArcOfCircle(Part.Circle(V(357.8, -299.2, 0), V(0, 0, 1), 2.5), math.radians(-180), math.radians(-90)), False)
sketch4.addGeometry(Part.ArcOfCircle(Part.Circle(V(489, -299.2, 0), V(0, 0, 1), 2.5), math.radians(90), math.radians(180)), False)
sketch4.addGeometry(Part.ArcOfCircle(Part.Circle(V(488.9, -299.2, 0), V(0, 0, 1), 2.5), math.radians(0), math.radians(90)), False)
sketch4.addGeometry(Part.ArcOfCircle(Part.Circle(V(488.9, -299.2, 0), V(0, 0, 1), 2.5), math.radians(-90), math.radians(0)), False)
sketch4.addGeometry(Part.ArcOfCircle(Part.Circle(V(489, -299.2, 0), V(0, 0, 1), 2.5), math.radians(-180), math.radians(-90)), False)
sketch4.addConstraint([
    Sketcher.Constraint("Tangent", 12, 1, 13, 2),
    Sketcher.Constraint("Tangent", 13, 1, 14, 2),
    Sketcher.Constraint("Tangent", 14, 1, 15, 2),
    Sketcher.Constraint("Tangent", 15, 1, 12, 2),
    Sketcher.Constraint("Tangent", 16, 1, 17, 2),
    Sketcher.Constraint("Tangent", 17, 1, 18, 2),
    Sketcher.Constraint("Tangent", 18, 1, 19, 2),
    Sketcher.Constraint("Tangent", 19, 1, 16, 2),
    Sketcher.Constraint("Tangent", 20, 1, 21, 2),
    Sketcher.Constraint("Tangent", 21, 1, 22, 2),
    Sketcher.Constraint("Tangent", 22, 1, 23, 2),
    Sketcher.Constraint("Tangent", 23, 1, 20, 2),
    Sketcher.Constraint("Tangent", 24, 1, 25, 2),
    Sketcher.Constraint("Tangent", 25, 1, 26, 2),
    Sketcher.Constraint("Tangent", 26, 1, 27, 2),
    Sketcher.Constraint("Tangent", 27, 1, 24, 2),
    Sketcher.Constraint("Vertical", 0),
    Sketcher.Constraint("Horizontal", 1),
    Sketcher.Constraint("Vertical", 2),
    Sketcher.Constraint("Horizontal", 3),
    Sketcher.Constraint("Vertical", 4),
    Sketcher.Constraint("Horizontal", 5),
    Sketcher.Constraint("Vertical", 6),
    Sketcher.Constraint("Horizontal", 7),
    Sketcher.Constraint("Vertical", 8),
    Sketcher.Constraint("Horizontal", 9),
    Sketcher.Constraint("Vertical", 10),
    Sketcher.Constraint("Horizontal", 11),
    Sketcher.Constraint("Equal", 12, 13),
    Sketcher.Constraint("Equal", 15, 16),
    Sketcher.Constraint("Equal", 16, 17),
    Sketcher.Constraint("Equal", 19, 20),
    Sketcher.Constraint("Equal", 20, 21),
    Sketcher.Constraint("Equal", 23, 24),
    Sketcher.Constraint("Equal", 24, 25),
    Sketcher.Constraint("Symmetric", 16, 3, 20, 3, -2),
    Sketcher.Constraint("Symmetric", 12, 3, 24, 3, -2),
    Sketcher.Constraint("Symmetric", 0, 2, 5, 2, -2),
    Sketcher.Constraint("Symmetric", 7, 2, 10, 2, -2),
    Sketcher.Constraint("Horizontal", 15, 3, 16, 3),
    Sketcher.Constraint("Horizontal", 3, 2, 6, 2),
    Sketcher.Constraint("Horizontal", 27, 3, 13, 1),
    Sketcher.Constraint("Horizontal", 13, 1, 15, 1),
    Sketcher.Constraint("Horizontal", 15, 1, 17, 1),
    Sketcher.Constraint("Horizontal", 17, 1, 19, 1),
    Sketcher.Constraint("Horizontal", 19, 1, 21, 1),
    Sketcher.Constraint("Horizontal", 21, 1, 23, 1),
    Sketcher.Constraint("Horizontal", 23, 1, 25, 1),
    Sketcher.Constraint("Horizontal", 25, 1, 27, 1),
    Sketcher.Constraint("Vertical", 15, 3, 12, 1),
    Sketcher.Constraint("Vertical", 12, 1, 14, 1),
    Sketcher.Constraint("Vertical", 19, 3, 16, 1),
    Sketcher.Constraint("Vertical", 16, 1, 18, 1),
    Sketcher.Constraint("Vertical", 23, 3, 20, 1),
    Sketcher.Constraint("Vertical", 20, 1, 22, 1),
    Sketcher.Constraint("Vertical", 27, 3, 24, 1),
    Sketcher.Constraint("Vertical", 24, 1, 26, 1),
    Sketcher.Constraint("Equal", 11, 0),
    Sketcher.Constraint("Radius", 12, Q("0.1 in")),
    Sketcher.Constraint("DistanceX", 9, 2, 9, 1, Q("39 in")),
    Sketcher.Constraint("DistanceX", 7, 2, 7, 1, Q("0.5 in")),
    Sketcher.Constraint("DistanceY", 8, 1, 8, 2, Q("0.65625 in")),
    Sketcher.Constraint("DistanceX", 12, 3, -1, 1, Q("19.25 in")),
    Sketcher.Constraint("DistanceY", 0, 2, 13, 3, Q("0.25 in")),
    Sketcher.Constraint("DistanceX", 1, 1, 1, 2, Q("6.2087 in")),
    Sketcher.Constraint("DistanceX", 3, 1, 3, 2, Q("27.1889 in")),
    Sketcher.Constraint("DistanceY", 12, 3, -1, 1, Q("11.78125 in")),
    Sketcher.Constraint("DistanceX", 16, 3, -1, 1, Q("357.839999 mm")),
])
sketch4.setExpression("Constraints[70]", "Params.sketch4_radius")
sketch4.setExpression("Constraints[71]", "Params.sketch4_width")
sketch4.setExpression("Constraints[72]", "Params.sketch4_width2")
sketch4.setExpression("Constraints[73]", "Params.sketch4_height")
pad4 = doc.addObject("PartDesign::Pad", "Pad003")
body4.addObject(pad4)
pad4.Profile = sketch4
pad4.setExpression("Length", "Params.pad4_length")
pad4.Midplane = True

doc.recompute()
